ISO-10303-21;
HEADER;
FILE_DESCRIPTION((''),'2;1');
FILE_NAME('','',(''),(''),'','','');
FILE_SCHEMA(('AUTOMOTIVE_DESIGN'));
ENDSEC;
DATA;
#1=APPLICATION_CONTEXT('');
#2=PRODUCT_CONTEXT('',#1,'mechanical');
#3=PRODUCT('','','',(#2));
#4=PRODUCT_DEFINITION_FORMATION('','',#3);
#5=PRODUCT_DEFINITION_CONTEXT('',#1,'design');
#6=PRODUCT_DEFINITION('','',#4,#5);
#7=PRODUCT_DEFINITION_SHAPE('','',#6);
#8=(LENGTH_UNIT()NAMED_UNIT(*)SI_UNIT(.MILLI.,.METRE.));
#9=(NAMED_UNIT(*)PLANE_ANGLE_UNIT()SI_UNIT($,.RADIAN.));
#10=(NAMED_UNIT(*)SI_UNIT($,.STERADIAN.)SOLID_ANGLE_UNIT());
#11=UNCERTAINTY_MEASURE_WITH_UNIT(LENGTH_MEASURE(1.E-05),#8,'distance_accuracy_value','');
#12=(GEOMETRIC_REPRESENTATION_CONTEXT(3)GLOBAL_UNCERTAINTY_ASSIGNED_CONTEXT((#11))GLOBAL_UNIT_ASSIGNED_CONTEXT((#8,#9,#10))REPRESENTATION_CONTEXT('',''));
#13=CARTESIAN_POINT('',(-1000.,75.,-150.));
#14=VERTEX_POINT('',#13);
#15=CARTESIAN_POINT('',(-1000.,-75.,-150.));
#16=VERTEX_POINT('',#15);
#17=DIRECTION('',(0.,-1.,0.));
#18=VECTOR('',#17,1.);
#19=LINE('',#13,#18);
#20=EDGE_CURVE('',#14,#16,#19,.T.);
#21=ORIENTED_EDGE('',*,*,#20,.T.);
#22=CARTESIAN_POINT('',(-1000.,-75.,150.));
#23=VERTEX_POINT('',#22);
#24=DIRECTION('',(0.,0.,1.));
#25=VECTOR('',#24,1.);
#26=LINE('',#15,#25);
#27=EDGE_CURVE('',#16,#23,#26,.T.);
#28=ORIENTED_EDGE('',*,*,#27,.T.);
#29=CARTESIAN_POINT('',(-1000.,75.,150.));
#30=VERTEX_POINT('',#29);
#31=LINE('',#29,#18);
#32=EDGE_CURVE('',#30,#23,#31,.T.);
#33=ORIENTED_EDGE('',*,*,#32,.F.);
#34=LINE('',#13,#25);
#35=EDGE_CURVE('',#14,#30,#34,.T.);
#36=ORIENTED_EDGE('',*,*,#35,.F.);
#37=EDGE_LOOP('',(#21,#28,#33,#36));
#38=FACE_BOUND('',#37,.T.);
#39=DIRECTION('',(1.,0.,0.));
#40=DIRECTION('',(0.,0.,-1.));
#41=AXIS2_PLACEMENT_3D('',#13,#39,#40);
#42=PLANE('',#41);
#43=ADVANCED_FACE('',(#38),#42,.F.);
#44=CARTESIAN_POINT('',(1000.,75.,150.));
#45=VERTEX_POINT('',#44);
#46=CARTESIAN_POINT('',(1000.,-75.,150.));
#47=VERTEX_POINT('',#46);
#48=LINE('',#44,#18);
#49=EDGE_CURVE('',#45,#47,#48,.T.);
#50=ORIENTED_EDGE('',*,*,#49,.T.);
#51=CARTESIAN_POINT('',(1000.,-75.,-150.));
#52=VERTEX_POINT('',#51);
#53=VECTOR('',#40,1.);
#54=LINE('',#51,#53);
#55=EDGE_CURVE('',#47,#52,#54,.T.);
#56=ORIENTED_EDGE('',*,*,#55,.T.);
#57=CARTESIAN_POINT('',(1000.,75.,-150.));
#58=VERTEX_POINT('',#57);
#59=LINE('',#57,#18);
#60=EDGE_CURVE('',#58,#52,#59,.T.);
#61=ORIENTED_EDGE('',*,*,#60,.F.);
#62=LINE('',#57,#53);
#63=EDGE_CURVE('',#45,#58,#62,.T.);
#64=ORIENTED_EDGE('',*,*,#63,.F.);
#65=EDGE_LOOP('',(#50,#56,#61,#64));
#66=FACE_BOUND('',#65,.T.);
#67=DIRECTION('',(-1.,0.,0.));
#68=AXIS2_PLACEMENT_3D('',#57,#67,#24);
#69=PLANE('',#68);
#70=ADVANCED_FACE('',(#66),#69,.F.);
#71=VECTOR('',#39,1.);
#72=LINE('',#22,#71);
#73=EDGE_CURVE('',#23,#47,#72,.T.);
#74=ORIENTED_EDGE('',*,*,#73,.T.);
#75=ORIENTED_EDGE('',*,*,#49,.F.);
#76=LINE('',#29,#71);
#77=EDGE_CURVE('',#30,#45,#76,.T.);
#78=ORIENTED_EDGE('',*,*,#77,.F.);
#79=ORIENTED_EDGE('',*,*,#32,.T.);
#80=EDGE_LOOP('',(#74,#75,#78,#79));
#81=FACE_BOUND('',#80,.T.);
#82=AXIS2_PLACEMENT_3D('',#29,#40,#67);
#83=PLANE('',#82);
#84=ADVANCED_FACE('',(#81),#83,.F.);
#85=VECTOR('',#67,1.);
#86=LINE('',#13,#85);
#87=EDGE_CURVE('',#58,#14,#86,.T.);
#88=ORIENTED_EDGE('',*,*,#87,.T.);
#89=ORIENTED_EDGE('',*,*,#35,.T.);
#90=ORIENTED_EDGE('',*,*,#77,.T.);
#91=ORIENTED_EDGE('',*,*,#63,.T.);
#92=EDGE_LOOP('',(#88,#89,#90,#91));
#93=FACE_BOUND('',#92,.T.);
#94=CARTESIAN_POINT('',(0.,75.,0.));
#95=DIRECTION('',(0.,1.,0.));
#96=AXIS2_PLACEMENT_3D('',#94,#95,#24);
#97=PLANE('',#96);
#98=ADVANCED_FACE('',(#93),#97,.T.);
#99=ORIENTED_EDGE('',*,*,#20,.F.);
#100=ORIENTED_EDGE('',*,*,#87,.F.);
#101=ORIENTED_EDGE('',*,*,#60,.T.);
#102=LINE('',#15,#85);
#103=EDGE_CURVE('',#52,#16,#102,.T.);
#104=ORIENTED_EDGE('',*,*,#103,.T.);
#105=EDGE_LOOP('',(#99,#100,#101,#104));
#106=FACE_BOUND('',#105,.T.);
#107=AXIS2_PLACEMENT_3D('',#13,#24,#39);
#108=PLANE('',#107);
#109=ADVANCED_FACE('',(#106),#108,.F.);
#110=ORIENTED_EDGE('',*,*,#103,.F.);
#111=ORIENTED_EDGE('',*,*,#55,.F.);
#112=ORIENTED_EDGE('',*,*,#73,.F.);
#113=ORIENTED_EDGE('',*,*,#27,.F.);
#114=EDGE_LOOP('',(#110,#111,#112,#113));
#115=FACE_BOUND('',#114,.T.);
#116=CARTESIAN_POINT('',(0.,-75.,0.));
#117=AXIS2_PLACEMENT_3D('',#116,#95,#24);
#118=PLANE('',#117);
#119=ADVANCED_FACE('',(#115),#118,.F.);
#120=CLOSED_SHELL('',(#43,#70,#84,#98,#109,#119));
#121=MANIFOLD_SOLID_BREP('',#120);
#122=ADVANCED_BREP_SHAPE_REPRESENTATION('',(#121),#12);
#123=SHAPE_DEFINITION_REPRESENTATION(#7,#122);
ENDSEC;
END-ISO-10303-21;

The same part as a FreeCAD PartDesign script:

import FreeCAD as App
import Part
import Sketcher
Q = App.Units.Quantity

doc = App.newDocument("Part")
body = doc.addObject("PartDesign::Body", "Body")

# Sketch on XZ plane
sketch1 = body.newObject("Sketcher::SketchObject", "Sketch")
sketch1.AttachmentSupport = (doc.getObject("XZ_Plane"), [""])
sketch1.MapMode = "FlatFace"
sketch1.addGeometry(Part.LineSegment(App.Vector(-1000, -150, 0), App.Vector(-1000, 150, 0)), False)
sketch1.addGeometry(Part.LineSegment(App.Vector(-1000, 150, 0), App.Vector(1000, 150, 0)), False)
sketch1.addGeometry(Part.LineSegment(App.Vector(1000, 150, 0), App.Vector(1000, -150, 0)), False)
sketch1.addGeometry(Part.LineSegment(App.Vector(1000, -150, 0), App.Vector(-1000, -150, 0)), False)
sketch1.addConstraint(Sketcher.Constraint("Coincident", 0, 2, 1, 1))
sketch1.addConstraint(Sketcher.Constraint("Coincident", 1, 2, 2, 1))
sketch1.addConstraint(Sketcher.Constraint("Coincident", 2, 2, 3, 1))
sketch1.addConstraint(Sketcher.Constraint("Coincident", 3, 2, 0, 1))
sketch1.addConstraint(Sketcher.Constraint("Vertical", 0))
sketch1.addConstraint(Sketcher.Constraint("Horizontal", 1))
sketch1.addConstraint(Sketcher.Constraint("Vertical", 2))
sketch1.addConstraint(Sketcher.Constraint("Horizontal", 3))
sketch1.addConstraint(Sketcher.Constraint("Symmetric", 0, 2, 2, 2, -1, 1))
sketch1.addConstraint(Sketcher.Constraint("DistanceX", 1, 1, 1, 2, Q("2000 mm")))
sketch1.addConstraint(Sketcher.Constraint("DistanceY", 0, 1, 0, 2, Q("300 mm")))
pad1 = body.newObject("PartDesign::Pad", "Pad")
pad1.Profile = sketch1
pad1.Length = 150
pad1.Midplane = True

doc.recompute()
